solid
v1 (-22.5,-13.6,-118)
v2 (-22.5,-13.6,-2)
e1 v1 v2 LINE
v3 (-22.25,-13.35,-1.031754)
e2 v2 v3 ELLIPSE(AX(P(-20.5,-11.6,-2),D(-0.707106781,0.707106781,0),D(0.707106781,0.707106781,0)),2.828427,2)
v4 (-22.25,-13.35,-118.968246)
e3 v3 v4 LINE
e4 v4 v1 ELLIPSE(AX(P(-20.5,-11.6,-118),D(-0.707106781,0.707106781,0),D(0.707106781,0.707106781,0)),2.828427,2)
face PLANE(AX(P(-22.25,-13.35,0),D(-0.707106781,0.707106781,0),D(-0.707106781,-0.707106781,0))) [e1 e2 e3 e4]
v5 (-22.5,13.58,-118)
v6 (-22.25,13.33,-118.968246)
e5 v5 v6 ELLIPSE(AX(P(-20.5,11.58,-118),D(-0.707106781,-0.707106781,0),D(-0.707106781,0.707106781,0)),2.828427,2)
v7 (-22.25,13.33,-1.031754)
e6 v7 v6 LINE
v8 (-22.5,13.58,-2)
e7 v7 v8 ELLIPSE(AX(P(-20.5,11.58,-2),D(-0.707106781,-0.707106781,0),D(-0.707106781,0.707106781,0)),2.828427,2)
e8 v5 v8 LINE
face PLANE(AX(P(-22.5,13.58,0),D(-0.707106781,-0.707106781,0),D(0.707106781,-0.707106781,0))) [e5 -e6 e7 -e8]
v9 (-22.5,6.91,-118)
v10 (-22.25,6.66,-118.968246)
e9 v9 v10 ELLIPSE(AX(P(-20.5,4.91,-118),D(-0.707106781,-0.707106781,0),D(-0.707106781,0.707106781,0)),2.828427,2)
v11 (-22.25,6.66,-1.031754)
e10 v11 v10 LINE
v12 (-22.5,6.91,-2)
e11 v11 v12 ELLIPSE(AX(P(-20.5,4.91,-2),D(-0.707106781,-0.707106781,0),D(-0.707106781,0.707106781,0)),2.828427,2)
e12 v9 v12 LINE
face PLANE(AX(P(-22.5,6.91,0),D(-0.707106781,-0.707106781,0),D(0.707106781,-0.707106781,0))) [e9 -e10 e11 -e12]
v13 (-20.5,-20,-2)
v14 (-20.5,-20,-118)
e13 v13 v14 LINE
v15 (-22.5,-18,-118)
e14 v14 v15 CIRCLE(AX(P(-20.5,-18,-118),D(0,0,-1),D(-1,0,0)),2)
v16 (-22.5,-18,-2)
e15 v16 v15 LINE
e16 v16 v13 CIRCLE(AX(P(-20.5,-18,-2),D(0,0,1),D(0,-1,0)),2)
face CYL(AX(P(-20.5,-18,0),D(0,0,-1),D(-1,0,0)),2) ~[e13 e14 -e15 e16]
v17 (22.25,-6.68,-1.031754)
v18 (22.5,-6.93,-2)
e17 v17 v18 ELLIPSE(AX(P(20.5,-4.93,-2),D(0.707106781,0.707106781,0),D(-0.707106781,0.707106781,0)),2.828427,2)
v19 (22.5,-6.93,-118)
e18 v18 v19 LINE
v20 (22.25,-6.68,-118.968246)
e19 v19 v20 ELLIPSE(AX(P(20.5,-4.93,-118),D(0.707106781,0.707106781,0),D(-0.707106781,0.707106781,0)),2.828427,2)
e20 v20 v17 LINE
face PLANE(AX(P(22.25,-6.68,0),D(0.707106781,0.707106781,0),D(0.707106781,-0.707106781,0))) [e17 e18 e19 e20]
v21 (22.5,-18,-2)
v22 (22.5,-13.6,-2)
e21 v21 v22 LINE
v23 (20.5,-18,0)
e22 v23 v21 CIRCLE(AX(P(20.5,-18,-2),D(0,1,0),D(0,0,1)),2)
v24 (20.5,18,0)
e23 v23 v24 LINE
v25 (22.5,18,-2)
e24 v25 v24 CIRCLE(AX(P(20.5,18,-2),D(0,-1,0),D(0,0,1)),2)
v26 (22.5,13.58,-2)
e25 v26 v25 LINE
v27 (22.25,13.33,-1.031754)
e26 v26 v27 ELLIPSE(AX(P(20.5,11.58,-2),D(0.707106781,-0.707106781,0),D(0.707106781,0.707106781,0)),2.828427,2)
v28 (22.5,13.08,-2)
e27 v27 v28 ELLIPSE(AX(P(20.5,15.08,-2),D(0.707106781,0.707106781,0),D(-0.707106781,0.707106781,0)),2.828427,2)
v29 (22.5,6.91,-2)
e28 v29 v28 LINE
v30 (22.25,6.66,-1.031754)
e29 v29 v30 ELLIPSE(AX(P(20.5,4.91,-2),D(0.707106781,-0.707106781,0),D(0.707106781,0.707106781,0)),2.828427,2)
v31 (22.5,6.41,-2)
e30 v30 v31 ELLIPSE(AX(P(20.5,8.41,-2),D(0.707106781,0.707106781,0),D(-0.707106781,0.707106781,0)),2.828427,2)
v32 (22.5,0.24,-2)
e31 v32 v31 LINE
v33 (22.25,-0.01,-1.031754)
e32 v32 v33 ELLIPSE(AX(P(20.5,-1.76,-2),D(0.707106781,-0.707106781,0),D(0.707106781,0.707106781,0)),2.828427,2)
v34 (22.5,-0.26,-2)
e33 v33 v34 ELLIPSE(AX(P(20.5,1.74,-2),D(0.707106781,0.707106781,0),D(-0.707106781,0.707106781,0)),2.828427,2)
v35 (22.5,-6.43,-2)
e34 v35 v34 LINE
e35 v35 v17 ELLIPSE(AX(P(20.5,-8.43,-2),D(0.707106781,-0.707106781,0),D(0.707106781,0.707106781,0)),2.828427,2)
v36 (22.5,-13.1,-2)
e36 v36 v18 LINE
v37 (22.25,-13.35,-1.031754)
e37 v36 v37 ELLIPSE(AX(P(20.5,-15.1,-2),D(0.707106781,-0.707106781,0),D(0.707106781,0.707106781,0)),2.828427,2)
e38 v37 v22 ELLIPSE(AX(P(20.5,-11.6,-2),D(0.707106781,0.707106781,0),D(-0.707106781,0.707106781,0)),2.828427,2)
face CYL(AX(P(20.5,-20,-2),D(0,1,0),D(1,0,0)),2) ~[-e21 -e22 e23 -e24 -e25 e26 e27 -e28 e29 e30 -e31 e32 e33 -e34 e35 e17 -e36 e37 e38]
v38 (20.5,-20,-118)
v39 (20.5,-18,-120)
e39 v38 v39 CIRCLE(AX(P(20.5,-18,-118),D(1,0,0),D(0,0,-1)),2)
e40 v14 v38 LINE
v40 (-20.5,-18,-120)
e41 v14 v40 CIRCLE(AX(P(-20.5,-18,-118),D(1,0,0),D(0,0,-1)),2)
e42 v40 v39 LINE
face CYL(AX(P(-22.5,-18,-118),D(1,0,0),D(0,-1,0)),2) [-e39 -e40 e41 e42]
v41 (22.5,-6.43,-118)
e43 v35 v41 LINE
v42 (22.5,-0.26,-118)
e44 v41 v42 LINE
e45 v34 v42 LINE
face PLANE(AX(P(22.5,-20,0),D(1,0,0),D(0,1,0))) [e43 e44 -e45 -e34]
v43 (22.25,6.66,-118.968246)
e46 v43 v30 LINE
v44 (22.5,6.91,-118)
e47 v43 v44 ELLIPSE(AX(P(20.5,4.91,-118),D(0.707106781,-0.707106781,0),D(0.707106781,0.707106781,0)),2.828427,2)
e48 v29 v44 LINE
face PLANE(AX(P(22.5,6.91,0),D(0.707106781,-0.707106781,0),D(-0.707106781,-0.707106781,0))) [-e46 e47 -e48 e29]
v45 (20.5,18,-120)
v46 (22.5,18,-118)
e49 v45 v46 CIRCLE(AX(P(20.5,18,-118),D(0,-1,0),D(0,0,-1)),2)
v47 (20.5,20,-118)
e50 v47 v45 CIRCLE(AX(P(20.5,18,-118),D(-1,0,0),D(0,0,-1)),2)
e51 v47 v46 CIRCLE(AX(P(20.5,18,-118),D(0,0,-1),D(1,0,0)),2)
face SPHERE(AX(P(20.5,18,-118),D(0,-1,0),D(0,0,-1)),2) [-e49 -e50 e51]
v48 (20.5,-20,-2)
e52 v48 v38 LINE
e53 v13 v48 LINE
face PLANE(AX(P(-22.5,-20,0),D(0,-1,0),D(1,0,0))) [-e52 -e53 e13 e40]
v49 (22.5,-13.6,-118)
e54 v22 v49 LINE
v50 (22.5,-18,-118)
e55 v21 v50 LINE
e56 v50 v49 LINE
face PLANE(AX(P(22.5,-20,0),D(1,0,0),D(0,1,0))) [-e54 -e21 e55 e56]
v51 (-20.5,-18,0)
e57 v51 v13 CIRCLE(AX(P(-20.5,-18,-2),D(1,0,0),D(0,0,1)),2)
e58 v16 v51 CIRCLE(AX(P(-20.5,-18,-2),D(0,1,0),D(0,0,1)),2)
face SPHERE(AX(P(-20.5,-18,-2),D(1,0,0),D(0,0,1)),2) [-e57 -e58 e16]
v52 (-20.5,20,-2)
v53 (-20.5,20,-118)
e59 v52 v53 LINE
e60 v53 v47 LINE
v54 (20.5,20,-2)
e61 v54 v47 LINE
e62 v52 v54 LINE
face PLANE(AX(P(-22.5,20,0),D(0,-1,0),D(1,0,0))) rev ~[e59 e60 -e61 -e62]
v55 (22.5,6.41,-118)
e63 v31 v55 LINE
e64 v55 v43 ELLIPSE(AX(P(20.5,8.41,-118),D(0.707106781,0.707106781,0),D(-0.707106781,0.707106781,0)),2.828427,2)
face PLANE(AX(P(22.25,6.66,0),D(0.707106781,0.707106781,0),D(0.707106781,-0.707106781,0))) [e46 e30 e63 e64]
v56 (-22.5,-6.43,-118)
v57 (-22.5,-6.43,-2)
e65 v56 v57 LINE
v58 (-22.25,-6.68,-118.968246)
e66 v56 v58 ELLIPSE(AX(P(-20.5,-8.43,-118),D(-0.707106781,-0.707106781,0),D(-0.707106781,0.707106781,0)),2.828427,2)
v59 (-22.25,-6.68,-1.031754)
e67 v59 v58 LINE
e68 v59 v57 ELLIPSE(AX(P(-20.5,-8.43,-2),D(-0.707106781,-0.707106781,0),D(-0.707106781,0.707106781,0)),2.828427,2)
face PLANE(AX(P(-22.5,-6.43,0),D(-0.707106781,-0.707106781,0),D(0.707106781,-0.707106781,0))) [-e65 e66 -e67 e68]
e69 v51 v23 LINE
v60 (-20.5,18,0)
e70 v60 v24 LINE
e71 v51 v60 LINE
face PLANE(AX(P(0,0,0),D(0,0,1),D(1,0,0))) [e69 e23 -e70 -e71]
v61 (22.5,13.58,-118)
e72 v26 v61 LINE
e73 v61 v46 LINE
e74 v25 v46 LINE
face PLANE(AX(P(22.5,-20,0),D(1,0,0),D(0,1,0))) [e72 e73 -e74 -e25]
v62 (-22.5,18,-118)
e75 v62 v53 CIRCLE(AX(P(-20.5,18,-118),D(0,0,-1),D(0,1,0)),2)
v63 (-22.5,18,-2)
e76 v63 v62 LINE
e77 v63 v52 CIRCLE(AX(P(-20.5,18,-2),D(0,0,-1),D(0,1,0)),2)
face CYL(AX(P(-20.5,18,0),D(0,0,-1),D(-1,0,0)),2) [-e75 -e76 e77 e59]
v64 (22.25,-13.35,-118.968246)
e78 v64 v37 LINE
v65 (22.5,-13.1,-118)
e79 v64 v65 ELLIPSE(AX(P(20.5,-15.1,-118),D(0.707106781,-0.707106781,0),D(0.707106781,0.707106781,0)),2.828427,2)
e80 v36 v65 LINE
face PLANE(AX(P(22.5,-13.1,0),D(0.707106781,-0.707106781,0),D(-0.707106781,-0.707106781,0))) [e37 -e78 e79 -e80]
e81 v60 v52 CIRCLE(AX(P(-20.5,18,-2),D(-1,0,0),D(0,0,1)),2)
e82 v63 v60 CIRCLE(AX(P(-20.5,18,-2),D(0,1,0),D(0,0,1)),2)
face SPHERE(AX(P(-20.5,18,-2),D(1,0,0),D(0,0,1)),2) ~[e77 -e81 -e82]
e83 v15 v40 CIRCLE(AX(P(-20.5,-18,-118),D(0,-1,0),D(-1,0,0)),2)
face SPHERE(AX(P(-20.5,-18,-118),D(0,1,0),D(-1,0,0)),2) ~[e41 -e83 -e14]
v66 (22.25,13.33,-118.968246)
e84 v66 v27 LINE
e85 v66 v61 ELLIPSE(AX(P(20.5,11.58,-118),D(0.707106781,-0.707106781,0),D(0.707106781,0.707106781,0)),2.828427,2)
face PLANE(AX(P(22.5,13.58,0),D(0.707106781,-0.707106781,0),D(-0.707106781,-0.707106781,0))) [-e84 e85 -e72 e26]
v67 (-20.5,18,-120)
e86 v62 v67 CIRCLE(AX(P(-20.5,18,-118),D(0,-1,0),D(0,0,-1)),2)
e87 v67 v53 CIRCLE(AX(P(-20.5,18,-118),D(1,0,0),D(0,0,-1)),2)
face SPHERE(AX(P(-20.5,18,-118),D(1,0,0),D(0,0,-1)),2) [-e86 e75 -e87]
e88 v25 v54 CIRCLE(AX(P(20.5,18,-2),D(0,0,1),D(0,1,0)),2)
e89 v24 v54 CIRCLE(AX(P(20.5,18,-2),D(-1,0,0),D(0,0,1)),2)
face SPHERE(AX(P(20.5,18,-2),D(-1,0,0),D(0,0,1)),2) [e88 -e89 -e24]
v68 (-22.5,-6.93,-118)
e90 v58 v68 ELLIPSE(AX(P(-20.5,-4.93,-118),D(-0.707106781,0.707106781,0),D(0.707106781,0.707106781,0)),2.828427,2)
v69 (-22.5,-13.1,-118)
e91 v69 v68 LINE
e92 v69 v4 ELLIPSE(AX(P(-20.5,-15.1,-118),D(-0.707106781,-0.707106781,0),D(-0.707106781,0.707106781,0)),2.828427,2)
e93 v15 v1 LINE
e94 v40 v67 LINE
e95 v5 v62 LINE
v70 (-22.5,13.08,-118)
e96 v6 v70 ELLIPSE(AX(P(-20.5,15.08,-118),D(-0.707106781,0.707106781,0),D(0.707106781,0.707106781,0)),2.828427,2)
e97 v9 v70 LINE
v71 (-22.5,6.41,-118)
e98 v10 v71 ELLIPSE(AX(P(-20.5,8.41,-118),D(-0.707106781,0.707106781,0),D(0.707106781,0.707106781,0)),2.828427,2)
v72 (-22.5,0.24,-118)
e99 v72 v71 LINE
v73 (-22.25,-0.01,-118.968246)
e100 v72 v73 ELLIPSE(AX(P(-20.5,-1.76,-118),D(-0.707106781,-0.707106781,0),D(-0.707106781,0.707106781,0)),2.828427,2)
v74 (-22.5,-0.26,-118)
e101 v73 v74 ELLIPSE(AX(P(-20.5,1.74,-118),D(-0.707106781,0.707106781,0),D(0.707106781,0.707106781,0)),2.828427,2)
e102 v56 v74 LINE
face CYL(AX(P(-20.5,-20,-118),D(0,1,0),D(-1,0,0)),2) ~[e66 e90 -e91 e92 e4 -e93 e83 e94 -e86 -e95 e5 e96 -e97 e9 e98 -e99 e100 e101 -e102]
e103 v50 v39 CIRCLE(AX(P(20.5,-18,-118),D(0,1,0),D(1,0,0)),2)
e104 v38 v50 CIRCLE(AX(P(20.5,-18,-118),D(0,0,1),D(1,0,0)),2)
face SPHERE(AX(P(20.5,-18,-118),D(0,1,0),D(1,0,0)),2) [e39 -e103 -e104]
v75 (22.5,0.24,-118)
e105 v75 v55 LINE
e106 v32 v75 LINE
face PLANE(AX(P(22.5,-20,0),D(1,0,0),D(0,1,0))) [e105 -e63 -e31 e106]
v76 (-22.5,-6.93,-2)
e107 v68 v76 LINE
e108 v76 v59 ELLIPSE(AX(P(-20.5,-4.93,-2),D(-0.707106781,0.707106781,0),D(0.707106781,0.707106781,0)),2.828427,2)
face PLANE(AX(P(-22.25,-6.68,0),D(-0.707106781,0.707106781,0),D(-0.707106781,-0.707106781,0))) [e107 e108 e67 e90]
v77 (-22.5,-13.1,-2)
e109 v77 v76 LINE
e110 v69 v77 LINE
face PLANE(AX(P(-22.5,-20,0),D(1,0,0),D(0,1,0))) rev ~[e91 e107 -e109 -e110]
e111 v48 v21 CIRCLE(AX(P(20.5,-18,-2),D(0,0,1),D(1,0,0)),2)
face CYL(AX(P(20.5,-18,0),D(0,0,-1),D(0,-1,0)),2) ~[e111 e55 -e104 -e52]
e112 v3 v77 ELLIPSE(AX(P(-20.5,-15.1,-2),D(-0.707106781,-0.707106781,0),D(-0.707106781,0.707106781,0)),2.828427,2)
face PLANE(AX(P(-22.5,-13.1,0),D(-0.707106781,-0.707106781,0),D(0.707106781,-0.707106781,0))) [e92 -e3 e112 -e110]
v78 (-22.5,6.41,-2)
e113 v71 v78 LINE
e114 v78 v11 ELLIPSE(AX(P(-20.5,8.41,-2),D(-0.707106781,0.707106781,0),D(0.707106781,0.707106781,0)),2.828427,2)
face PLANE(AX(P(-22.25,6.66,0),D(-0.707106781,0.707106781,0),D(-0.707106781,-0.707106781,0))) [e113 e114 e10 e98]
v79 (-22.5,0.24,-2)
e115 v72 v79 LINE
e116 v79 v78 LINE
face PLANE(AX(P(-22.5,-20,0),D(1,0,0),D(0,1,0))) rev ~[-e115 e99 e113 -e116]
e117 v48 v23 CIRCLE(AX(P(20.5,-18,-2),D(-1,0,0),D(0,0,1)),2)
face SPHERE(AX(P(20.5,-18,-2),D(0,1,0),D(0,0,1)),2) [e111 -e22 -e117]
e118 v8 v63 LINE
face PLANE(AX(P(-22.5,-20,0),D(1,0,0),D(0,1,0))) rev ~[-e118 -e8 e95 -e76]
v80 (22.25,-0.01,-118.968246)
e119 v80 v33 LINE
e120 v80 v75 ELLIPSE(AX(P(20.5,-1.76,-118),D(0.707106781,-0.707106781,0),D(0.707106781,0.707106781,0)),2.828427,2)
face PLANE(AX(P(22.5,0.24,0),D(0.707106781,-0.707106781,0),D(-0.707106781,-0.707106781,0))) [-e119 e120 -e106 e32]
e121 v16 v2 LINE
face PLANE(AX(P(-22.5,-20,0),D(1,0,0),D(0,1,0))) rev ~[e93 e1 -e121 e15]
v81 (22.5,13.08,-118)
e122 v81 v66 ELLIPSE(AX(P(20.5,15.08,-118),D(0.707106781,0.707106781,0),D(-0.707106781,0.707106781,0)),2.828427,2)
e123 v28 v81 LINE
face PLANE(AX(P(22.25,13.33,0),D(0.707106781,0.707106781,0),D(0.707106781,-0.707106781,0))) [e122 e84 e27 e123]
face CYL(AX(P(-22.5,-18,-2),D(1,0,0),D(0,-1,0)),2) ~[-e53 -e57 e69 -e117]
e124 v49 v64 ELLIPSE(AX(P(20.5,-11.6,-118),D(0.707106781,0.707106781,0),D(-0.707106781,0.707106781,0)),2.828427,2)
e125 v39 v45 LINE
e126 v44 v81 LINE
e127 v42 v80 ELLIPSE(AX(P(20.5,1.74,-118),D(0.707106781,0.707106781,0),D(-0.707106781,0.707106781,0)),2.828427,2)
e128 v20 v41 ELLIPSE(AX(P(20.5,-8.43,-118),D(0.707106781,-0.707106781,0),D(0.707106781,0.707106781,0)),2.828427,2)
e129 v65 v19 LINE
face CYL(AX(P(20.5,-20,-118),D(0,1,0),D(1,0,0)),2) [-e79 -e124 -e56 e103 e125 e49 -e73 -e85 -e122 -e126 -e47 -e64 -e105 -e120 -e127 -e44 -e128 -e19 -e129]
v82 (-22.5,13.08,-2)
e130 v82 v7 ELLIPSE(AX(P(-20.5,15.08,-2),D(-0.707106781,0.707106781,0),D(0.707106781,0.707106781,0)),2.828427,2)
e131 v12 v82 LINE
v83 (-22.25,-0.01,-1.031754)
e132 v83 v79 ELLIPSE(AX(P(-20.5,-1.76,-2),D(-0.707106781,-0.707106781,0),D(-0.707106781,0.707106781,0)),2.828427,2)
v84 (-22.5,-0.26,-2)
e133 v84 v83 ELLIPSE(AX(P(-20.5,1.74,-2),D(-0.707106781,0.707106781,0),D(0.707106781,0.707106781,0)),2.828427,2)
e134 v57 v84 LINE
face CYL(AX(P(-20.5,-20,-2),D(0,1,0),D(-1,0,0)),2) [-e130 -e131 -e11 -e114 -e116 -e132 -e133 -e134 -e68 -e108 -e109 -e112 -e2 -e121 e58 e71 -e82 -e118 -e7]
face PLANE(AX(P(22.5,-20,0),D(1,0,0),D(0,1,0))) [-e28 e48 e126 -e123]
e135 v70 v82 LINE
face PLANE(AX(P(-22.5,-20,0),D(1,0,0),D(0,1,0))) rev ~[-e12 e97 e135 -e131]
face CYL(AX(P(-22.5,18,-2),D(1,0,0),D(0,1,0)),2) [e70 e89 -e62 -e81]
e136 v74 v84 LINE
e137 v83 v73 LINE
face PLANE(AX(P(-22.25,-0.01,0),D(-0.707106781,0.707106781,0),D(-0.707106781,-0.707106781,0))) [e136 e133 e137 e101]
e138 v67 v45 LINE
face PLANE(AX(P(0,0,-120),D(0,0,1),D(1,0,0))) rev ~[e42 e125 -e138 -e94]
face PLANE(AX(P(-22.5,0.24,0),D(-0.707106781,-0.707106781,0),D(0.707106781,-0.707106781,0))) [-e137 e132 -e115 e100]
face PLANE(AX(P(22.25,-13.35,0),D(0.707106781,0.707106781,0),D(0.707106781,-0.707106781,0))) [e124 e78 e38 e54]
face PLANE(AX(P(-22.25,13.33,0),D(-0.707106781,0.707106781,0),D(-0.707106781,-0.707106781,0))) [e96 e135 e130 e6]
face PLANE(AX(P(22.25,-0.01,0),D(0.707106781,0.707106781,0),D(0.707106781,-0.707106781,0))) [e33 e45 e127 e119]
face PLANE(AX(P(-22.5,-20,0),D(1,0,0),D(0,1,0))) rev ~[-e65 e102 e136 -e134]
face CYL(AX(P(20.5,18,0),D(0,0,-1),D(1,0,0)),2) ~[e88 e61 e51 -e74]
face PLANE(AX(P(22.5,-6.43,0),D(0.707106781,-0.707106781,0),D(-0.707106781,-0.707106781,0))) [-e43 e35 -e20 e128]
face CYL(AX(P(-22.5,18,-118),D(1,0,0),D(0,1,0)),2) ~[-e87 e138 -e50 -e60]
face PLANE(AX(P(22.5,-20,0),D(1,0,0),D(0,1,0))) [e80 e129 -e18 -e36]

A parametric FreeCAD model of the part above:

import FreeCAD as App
import Part
import Sketcher
from FreeCAD import Vector


def add_polygon(sketch, points):
    """Adds a closed chain of lines whose ends are joined by coincident constraints."""
    first, n = sketch.GeometryCount, len(points)
    for a, b in zip(points, points[1:] + points[:1]):
        sketch.addGeometry(Part.LineSegment(App.Vector(*a, 0), App.Vector(*b, 0)), False)
    for i in range(n):
        sketch.addConstraint(Sketcher.Constraint("Coincident", first + i, 2, first + (i + 1) % n, 1))

doc = App.newDocument("Part")
body = doc.addObject("PartDesign::Body", "Body")

# Sketch on XY plane
sketch1 = body.newObject("Sketcher::SketchObject", "Sketch")
sketch1.AttachmentSupport = (doc.getObject("XY_Plane"), [""])
sketch1.MapMode = "FlatFace"
add_polygon(sketch1, [(-22, 20), (-22, -20), (22, -20), (22, 20)])  # lines 0-3
sketch1.addConstraint(Sketcher.Constraint("Vertical", 0))
sketch1.addConstraint(Sketcher.Constraint("Horizontal", 1))
sketch1.addConstraint(Sketcher.Constraint("Vertical", 2))
sketch1.addConstraint(Sketcher.Constraint("Horizontal", 3))
sketch1.addConstraint(Sketcher.Constraint("Symmetric", 0, 2, 2, 2, -1, 1))
sketch1.addConstraint(Sketcher.Constraint("DistanceX", 1, 1, 1, 2, 45.0))
sketch1.addConstraint(Sketcher.Constraint("DistanceY", 0, 2, 0, 1, 40.0))
pad1 = body.newObject("PartDesign::Pad", "Pad")
pad1.Profile = sketch1
pad1.Length = 120
pad1.Reversed = True
doc.recompute()

fillet = body.newObject("PartDesign::Fillet", "Fillet")
fillet.Base = (pad1, ["Edge1"])
fillet.UseAllEdges = True
fillet.Radius = 2

# Sketch on XY plane
sketch2 = body.newObject("Sketcher::SketchObject", "Sketch001")
sketch2.AttachmentSupport = (doc.getObject("XY_Plane"), [""])
sketch2.MapMode = "FlatFace"
add_polygon(sketch2, [(22.5, 13.58), (22.25, 13.33), (22.5, 13.08)])  # lines 0-2
add_polygon(sketch2, [(-22.25, 13.33), (-22.5, 13.58), (-22.5, 13.08)])  # lines 3-5
sketch2.addConstraint(Sketcher.Constraint("Vertical", 2))
sketch2.addConstraint(Sketcher.Constraint("Vertical", 4))
sketch2.addConstraint(Sketcher.Constraint("Symmetric", 2, 2, 3, 2, -2))
sketch2.addConstraint(Sketcher.Constraint("Symmetric", 0, 2, 5, 2, -2))
sketch2.addConstraint(Sketcher.Constraint("Perpendicular", 0, 1))
sketch2.addConstraint(Sketcher.Constraint("Parallel", 1, 3))
sketch2.addConstraint(Sketcher.Constraint("Perpendicular", 3, 5))
sketch2.addConstraint(Sketcher.Constraint("DistanceY", 2, 1, 2, 2, 0.5))
sketch2.addConstraint(Sketcher.Constraint("DistanceX", 3, 2, 2, 2, 45.0))
sketch2.addConstraint(Sketcher.Constraint("DistanceY", -1, 1, 0, 2, 13.33))
pocket1 = body.newObject("PartDesign::Pocket", "Pocket")
pocket1.Profile = sketch2
pocket1.Length = 249.436861
pocket1.Midplane = True
doc.recompute()

linearpattern = body.newObject("PartDesign::LinearPattern", "LinearPattern")
linearpattern.Originals = [pocket1]
linearpattern.Direction = (doc.getObject("Y_Axis"), [""])
linearpattern.Mode = "offset"
linearpattern.Offset = 6.67
linearpattern.Occurrences = 5
linearpattern.Reversed = True
body.Tip = linearpattern

doc.recompute()
